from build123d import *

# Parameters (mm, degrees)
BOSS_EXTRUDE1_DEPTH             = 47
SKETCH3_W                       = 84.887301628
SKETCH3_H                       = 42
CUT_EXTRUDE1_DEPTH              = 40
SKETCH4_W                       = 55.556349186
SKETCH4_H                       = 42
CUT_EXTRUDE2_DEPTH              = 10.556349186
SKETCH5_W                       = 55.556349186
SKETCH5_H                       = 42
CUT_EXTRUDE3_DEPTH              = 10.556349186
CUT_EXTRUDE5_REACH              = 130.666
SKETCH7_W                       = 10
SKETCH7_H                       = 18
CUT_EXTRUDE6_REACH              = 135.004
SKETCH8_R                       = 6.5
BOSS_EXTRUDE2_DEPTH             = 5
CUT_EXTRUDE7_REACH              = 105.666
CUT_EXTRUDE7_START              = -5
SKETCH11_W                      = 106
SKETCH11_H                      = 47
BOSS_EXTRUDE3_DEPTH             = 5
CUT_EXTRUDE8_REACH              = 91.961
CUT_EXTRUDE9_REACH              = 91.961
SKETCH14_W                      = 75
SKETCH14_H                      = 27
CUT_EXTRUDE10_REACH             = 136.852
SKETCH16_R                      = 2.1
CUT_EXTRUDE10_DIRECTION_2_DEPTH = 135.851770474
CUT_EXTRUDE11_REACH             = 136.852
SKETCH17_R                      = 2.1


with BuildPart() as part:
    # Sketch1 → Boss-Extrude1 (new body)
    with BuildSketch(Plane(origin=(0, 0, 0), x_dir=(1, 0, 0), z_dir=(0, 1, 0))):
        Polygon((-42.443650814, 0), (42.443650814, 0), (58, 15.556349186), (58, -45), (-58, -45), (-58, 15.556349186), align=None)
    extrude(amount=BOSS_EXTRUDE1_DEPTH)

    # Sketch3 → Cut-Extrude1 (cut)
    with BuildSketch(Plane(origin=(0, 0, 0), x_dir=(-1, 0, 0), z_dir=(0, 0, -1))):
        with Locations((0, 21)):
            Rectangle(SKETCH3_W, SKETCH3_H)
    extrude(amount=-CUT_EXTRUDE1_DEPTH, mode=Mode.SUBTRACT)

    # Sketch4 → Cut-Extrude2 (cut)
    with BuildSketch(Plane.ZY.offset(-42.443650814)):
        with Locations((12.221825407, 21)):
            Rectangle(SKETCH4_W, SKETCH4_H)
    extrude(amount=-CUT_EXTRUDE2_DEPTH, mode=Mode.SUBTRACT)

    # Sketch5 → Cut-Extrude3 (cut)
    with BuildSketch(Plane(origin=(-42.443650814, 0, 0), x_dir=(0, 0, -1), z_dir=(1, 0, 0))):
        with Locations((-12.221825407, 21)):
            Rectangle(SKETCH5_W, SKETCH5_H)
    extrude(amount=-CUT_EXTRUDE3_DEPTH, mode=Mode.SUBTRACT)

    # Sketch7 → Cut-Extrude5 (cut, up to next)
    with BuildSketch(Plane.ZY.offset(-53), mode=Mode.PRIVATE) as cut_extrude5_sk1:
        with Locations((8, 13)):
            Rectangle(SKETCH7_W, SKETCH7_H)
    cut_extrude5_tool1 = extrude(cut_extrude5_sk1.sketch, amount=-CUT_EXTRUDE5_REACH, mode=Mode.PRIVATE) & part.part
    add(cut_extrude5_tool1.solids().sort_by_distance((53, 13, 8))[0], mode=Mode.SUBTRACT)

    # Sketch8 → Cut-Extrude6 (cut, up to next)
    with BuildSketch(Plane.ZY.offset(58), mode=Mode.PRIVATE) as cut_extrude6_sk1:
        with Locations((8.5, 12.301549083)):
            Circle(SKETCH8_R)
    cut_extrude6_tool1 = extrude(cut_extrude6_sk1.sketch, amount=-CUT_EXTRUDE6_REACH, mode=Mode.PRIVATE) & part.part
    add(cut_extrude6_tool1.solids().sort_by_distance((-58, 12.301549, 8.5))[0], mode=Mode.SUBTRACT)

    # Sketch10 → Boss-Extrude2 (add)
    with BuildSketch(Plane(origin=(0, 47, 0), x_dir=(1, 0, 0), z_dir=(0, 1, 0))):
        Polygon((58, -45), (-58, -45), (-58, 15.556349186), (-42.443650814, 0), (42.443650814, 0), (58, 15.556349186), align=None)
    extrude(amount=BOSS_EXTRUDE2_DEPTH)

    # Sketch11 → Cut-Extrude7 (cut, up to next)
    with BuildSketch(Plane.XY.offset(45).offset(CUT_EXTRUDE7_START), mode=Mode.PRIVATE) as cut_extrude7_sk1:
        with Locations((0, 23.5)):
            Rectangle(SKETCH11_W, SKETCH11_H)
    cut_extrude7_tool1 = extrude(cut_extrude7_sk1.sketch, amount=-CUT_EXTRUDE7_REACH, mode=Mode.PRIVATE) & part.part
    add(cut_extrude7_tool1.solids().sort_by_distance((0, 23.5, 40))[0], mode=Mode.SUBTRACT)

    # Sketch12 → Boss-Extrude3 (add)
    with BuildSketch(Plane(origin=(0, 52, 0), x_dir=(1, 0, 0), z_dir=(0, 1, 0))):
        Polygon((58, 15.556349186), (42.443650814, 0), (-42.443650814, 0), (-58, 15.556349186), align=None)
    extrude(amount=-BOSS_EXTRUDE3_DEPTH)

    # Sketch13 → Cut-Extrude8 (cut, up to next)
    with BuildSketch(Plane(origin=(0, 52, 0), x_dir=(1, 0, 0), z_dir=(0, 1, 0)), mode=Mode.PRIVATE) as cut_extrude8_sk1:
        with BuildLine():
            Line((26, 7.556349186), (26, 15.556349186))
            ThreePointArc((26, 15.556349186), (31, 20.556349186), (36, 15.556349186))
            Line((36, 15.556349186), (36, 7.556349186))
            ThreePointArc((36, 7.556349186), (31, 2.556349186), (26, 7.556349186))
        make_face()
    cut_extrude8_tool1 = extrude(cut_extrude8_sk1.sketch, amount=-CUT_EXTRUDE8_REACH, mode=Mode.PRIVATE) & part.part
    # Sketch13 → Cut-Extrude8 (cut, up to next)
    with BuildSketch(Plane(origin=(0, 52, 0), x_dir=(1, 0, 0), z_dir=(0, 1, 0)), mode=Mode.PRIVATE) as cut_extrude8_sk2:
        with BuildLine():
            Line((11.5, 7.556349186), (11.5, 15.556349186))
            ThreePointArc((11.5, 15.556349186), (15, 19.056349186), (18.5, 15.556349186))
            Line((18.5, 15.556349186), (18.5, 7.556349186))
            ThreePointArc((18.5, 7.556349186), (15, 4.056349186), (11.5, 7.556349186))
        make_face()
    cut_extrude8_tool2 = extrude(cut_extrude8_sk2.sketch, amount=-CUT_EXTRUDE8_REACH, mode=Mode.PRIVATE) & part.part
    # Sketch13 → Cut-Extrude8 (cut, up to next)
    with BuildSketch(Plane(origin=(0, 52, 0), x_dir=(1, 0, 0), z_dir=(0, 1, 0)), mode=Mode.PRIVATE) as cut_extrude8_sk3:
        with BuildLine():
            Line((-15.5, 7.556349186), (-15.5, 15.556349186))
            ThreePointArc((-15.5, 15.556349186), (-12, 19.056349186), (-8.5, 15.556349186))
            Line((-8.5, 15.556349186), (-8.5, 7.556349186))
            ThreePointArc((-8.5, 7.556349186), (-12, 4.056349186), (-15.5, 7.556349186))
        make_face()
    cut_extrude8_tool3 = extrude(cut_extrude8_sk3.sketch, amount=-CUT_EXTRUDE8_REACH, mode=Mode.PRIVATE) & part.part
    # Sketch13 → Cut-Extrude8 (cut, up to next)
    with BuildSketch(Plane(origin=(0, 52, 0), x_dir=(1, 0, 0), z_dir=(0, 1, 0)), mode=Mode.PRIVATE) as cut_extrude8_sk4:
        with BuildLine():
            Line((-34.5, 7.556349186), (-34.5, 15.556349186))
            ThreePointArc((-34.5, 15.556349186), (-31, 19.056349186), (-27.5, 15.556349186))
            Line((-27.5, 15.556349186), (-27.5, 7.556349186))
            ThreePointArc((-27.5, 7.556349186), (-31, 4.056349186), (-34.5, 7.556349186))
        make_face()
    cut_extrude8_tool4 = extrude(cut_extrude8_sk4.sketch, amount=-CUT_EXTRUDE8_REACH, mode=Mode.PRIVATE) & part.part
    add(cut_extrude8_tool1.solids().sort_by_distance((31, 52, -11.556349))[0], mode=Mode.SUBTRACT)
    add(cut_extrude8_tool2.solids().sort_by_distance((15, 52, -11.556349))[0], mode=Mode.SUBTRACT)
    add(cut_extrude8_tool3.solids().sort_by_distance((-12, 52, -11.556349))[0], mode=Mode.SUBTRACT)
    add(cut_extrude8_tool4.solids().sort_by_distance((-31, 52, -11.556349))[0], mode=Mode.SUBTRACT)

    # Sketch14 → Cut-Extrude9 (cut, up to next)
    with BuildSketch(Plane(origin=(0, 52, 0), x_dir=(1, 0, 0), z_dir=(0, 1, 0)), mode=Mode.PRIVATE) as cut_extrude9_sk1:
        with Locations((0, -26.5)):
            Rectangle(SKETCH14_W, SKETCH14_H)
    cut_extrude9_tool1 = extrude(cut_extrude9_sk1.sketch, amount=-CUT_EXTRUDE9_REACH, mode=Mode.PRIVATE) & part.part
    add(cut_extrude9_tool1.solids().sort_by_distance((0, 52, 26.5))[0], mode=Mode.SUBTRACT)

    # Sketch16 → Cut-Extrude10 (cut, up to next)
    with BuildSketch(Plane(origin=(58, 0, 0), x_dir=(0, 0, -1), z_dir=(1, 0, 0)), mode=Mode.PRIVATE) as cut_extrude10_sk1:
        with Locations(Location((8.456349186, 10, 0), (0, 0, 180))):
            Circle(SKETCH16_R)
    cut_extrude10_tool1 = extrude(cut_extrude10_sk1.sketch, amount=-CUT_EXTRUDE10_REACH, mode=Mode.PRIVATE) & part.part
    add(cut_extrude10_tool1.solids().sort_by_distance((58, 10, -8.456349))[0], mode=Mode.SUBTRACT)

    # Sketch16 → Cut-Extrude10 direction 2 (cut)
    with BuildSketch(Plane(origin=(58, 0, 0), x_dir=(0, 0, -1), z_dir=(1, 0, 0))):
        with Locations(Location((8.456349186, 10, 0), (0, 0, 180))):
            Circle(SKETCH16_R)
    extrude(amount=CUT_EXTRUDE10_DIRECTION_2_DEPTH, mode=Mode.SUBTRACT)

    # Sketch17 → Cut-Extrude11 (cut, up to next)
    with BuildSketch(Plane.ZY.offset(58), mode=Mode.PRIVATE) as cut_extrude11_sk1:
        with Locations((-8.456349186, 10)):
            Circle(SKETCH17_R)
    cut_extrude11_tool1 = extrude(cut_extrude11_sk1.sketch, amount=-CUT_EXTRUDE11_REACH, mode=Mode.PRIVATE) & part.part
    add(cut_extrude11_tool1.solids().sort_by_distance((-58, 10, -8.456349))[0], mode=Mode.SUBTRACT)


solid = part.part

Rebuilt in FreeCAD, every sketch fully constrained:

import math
import FreeCAD as App
import Part
import Sketcher
from FreeCAD import Vector

doc = App.newDocument("Part")
body = doc.addObject("PartDesign::Body", "Body")

# Sketch on XZ plane
sketch1 = body.newObject("Sketcher::SketchObject", "Sketch")
sketch1.AttachmentSupport = (doc.getObject("XZ_Plane"), [""])
sketch1.MapMode = "FlatFace"
sketch1.addGeometry([
    Part.LineSegment(Vector(42, 0, 0), Vector(-42, 0, 0)),  # 0
    Part.LineSegment(Vector(-42, 0, 0), Vector(-58, -16, 0)),  # 1
    Part.LineSegment(Vector(-58, -16, 0), Vector(-58, 45, 0)),  # 2
    Part.LineSegment(Vector(-58, 45, 0), Vector(58, 45, 0)),  # 3
    Part.LineSegment(Vector(58, 45, 0), Vector(58, -16, 0)),  # 4
    Part.LineSegment(Vector(58, -16, 0), Vector(42, 0, 0)),  # 5
], False)
sketch1.addConstraint([
    Sketcher.Constraint("Coincident", 0, 2, 1, 1),
    Sketcher.Constraint("Coincident", 1, 2, 2, 1),
    Sketcher.Constraint("Coincident", 2, 2, 3, 1),
    Sketcher.Constraint("Coincident", 3, 2, 4, 1),
    Sketcher.Constraint("Coincident", 4, 2, 5, 1),
    Sketcher.Constraint("Coincident", 5, 2, 0, 1),
    Sketcher.Constraint("Horizontal", 0),
    Sketcher.Constraint("Vertical", 2),
    Sketcher.Constraint("Horizontal", 3),
    Sketcher.Constraint("Vertical", 4),
    Sketcher.Constraint("Symmetric", 0, 2, 5, 2, -1, 1),
    Sketcher.Constraint("Symmetric", 1, 2, 4, 2, -2),
    Sketcher.Constraint("Perpendicular", 1, 5),
    Sketcher.Constraint("DistanceX", 3, 1, 3, 2, 116.0),
    Sketcher.Constraint("Distance", 1, 22.0),
    Sketcher.Constraint("DistanceY", -1, 1, 2, 2, 45.0),
])
pad1 = body.newObject("PartDesign::Pad", "Pad")
pad1.Profile = sketch1
pad1.Length = 47
pad1.Reversed = True

# Sketch on XY plane
sketch2 = body.newObject("Sketcher::SketchObject", "Sketch001")
sketch2.AttachmentSupport = (doc.getObject("XY_Plane"), [""])
sketch2.MapMode = "FlatFace"
sketch2.addGeometry([
    Part.LineSegment(Vector(42, 42, 0), Vector(42, 0, 0)),
    Part.LineSegment(Vector(42, 0, 0), Vector(-42, 0, 0)),
    Part.LineSegment(Vector(-42, 0, 0), Vector(-42, 42, 0)),
    Part.LineSegment(Vector(-42, 42, 0), Vector(42, 42, 0)),
], False)
sketch2.addConstraint([
    Sketcher.Constraint("Coincident", 0, 2, 1, 1),
    Sketcher.Constraint("Coincident", 1, 2, 2, 1),
    Sketcher.Constraint("Coincident", 2, 2, 3, 1),
    Sketcher.Constraint("Coincident", 3, 2, 0, 1),
    Sketcher.Constraint("Vertical", 0),
    Sketcher.Constraint("Horizontal", 1),
    Sketcher.Constraint("Vertical", 2),
    Sketcher.Constraint("Horizontal", 3),
    Sketcher.Constraint("Symmetric", 0, 2, 1, 2, -1, 1),
    Sketcher.Constraint("DistanceY", 0, 2, 0, 1, 42.0),
    Sketcher.Constraint("DistanceX", 1, 2, 1, 1, 84.887302),
])
pocket1 = body.newObject("PartDesign::Pocket", "Pocket")
pocket1.Profile = sketch2
pocket1.Length = 40
pocket1.Reversed = True

# Sketch on YZ plane
sketch3 = body.newObject("Sketcher::SketchObject", "Sketch002")
sketch3.AttachmentSupport = (doc.getObject("YZ_Plane"), [""])
sketch3.MapMode = "FlatFace"
sketch3.AttachmentOffset = App.Placement(Vector(0, 0, 42.443651), App.Rotation())
sketch3.addGeometry([
    Part.LineSegment(Vector(42, -16, 0), Vector(0, -16, 0)),
    Part.LineSegment(Vector(0, -16, 0), Vector(0, 40, 0)),
    Part.LineSegment(Vector(0, 40, 0), Vector(42, 40, 0)),
    Part.LineSegment(Vector(42, 40, 0), Vector(42, -16, 0)),
], False)
sketch3.addConstraint([
    Sketcher.Constraint("Coincident", 0, 2, 1, 1),
    Sketcher.Constraint("Coincident", 1, 2, 2, 1),
    Sketcher.Constraint("Coincident", 2, 2, 3, 1),
    Sketcher.Constraint("Coincident", 3, 2, 0, 1),
    Sketcher.Constraint("Horizontal", 0),
    Sketcher.Constraint("Vertical", 1),
    Sketcher.Constraint("Horizontal", 2),
    Sketcher.Constraint("Vertical", 3),
    Sketcher.Constraint("PointOnObject", 0, 2, -2),
    Sketcher.Constraint("DistanceX", 0, 2, 0, 1, 42.0),
    Sketcher.Constraint("DistanceY", -1, 1, 1, 2, 40.0),
    Sketcher.Constraint("DistanceY", 1, 1, 1, 2, 55.556349),
])
pocket2 = body.newObject("PartDesign::Pocket", "Pocket001")
pocket2.Profile = sketch3
pocket2.Length = 10.556349
pocket2.Reversed = True

# Sketch on YZ plane
sketch4 = body.newObject("Sketcher::SketchObject", "Sketch003")
sketch4.AttachmentSupport = (doc.getObject("YZ_Plane"), [""])
sketch4.MapMode = "FlatFace"
sketch4.AttachmentOffset = App.Placement(Vector(0, 0, -42.443651), App.Rotation())
sketch4.addGeometry([
    Part.LineSegment(Vector(42, 40, 0), Vector(0, 40, 0)),
    Part.LineSegment(Vector(0, 40, 0), Vector(0, -16, 0)),
    Part.LineSegment(Vector(0, -16, 0), Vector(42, -16, 0)),
    Part.LineSegment(Vector(42, -16, 0), Vector(42, 40, 0)),
], False)
sketch4.addConstraint([
    Sketcher.Constraint("Coincident", 0, 2, 1, 1),
    Sketcher.Constraint("Coincident", 1, 2, 2, 1),
    Sketcher.Constraint("Coincident", 2, 2, 3, 1),
    Sketcher.Constraint("Coincident", 3, 2, 0, 1),
    Sketcher.Constraint("Horizontal", 0),
    Sketcher.Constraint("Vertical", 1),
    Sketcher.Constraint("Horizontal", 2),
    Sketcher.Constraint("Vertical", 3),
    Sketcher.Constraint("PointOnObject", 0, 2, -2),
    Sketcher.Constraint("DistanceX", 0, 2, 0, 1, 42.0),
    Sketcher.Constraint("DistanceY", -1, 1, 0, 2, 40.0),
    Sketcher.Constraint("DistanceY", 1, 2, 1, 1, 55.556349),
])
pocket3 = body.newObject("PartDesign::Pocket", "Pocket002")
pocket3.Profile = sketch4
pocket3.Length = 10.556349

# Sketch on YZ plane
sketch5 = body.newObject("Sketcher::SketchObject", "Sketch004")
sketch5.AttachmentSupport = (doc.getObject("YZ_Plane"), [""])
sketch5.MapMode = "FlatFace"
sketch5.AttachmentOffset = App.Placement(Vector(0, 0, 53), App.Rotation())
sketch5.addGeometry([
    Part.LineSegment(Vector(22, 3, 0), Vector(4, 3, 0)),
    Part.LineSegment(Vector(4, 3, 0), Vector(4, 13, 0)),
    Part.LineSegment(Vector(4, 13, 0), Vector(22, 13, 0)),
    Part.LineSegment(Vector(22, 13, 0), Vector(22, 3, 0)),
], False)
sketch5.addConstraint([
    Sketcher.Constraint("Coincident", 0, 2, 1, 1),
    Sketcher.Constraint("Coincident", 1, 2, 2, 1),
    Sketcher.Constraint("Coincident", 2, 2, 3, 1),
    Sketcher.Constraint("Coincident", 3, 2, 0, 1),
    Sketcher.Constraint("Horizontal", 0),
    Sketcher.Constraint("Vertical", 1),
    Sketcher.Constraint("Horizontal", 2),
    Sketcher.Constraint("Vertical", 3),
    Sketcher.Constraint("DistanceX", 0, 2, 0, 1, 18.0),
    Sketcher.Constraint("DistanceY", 1, 1, 1, 2, 10.0),
    Sketcher.Constraint("DistanceX", -1, 1, 0, 2, 4.0),
    Sketcher.Constraint("DistanceY", -1, 1, 0, 2, 3.0),
])
pocket4 = body.newObject("PartDesign::Pocket", "Pocket003")
pocket4.Profile = sketch5
pocket4.Type = "UpToFirst"
pocket4.Reversed = True

# Sketch on YZ plane
sketch6 = body.newObject("Sketcher::SketchObject", "Sketch005")
sketch6.AttachmentSupport = (doc.getObject("YZ_Plane"), [""])
sketch6.MapMode = "FlatFace"
sketch6.AttachmentOffset = App.Placement(Vector(0, 0, -58), App.Rotation())
sketch6.addGeometry(Part.Circle(Vector(12, 8, 0), Vector(0, 0, 1), 6), False)
sketch6.addConstraint([
    Sketcher.Constraint("Diameter", 0, 13.0),
    Sketcher.Constraint("DistanceY", -1, 1, 0, 3, 8.5),
    Sketcher.Constraint("DistanceX", -1, 1, 0, 3, 12.301549),
])
pocket5 = body.newObject("PartDesign::Pocket", "Pocket004")
pocket5.Profile = sketch6
pocket5.Type = "UpToFirst"
pocket5.Reversed = True

# Sketch on XZ plane
sketch7 = body.newObject("Sketcher::SketchObject", "Sketch006")
sketch7.AttachmentSupport = (doc.getObject("XZ_Plane"), [""])
sketch7.MapMode = "FlatFace"
sketch7.AttachmentOffset = App.Placement(Vector(0, 0, -47), App.Rotation())
sketch7.addGeometry([
    Part.LineSegment(Vector(-58, 45, 0), Vector(58, 45, 0)),  # 0
    Part.LineSegment(Vector(58, 45, 0), Vector(58, -16, 0)),  # 1
    Part.LineSegment(Vector(58, -16, 0), Vector(42, 0, 0)),  # 2
    Part.LineSegment(Vector(42, 0, 0), Vector(-42, 0, 0)),  # 3
    Part.LineSegment(Vector(-42, 0, 0), Vector(-58, -16, 0)),  # 4
    Part.LineSegment(Vector(-58, -16, 0), Vector(-58, 45, 0)),  # 5
], False)
sketch7.addConstraint([
    Sketcher.Constraint("Coincident", 0, 2, 1, 1),
    Sketcher.Constraint("Coincident", 1, 2, 2, 1),
    Sketcher.Constraint("Coincident", 2, 2, 3, 1),
    Sketcher.Constraint("Coincident", 3, 2, 4, 1),
    Sketcher.Constraint("Coincident", 4, 2, 5, 1),
    Sketcher.Constraint("Coincident", 5, 2, 0, 1),
    Sketcher.Constraint("Horizontal", 0),
    Sketcher.Constraint("Vertical", 1),
    Sketcher.Constraint("Horizontal", 3),
    Sketcher.Constraint("Vertical", 5),
    Sketcher.Constraint("Symmetric", 2, 2, 3, 2, -1, 1),
    Sketcher.Constraint("Symmetric", 1, 2, 4, 2, -2),
    Sketcher.Constraint("Perpendicular", 2, 4),
    Sketcher.Constraint("DistanceX", 0, 1, 0, 2, 116.0),
    Sketcher.Constraint("Distance", 2, 22.0),
    Sketcher.Constraint("DistanceY", -1, 1, 0, 2, 45.0),
])
pad2 = body.newObject("PartDesign::Pad", "Pad001")
pad2.Profile = sketch7
pad2.Length = 5
pad2.Reversed = True

# Sketch on XY plane
sketch8 = body.newObject("Sketcher::SketchObject", "Sketch007")
sketch8.AttachmentSupport = (doc.getObject("XY_Plane"), [""])
sketch8.MapMode = "FlatFace"
sketch8.AttachmentOffset = App.Placement(Vector(0, 0, 40), App.Rotation())
sketch8.addGeometry([
    Part.LineSegment(Vector(-53, 47, 0), Vector(-53, 0, 0)),
    Part.LineSegment(Vector(-53, 0, 0), Vector(53, 0, 0)),
    Part.LineSegment(Vector(53, 0, 0), Vector(53, 47, 0)),
    Part.LineSegment(Vector(53, 47, 0), Vector(-53, 47, 0)),
], False)
sketch8.addConstraint([
    Sketcher.Constraint("Coincident", 0, 2, 1, 1),
    Sketcher.Constraint("Coincident", 1, 2, 2, 1),
    Sketcher.Constraint("Coincident", 2, 2, 3, 1),
    Sketcher.Constraint("Coincident", 3, 2, 0, 1),
    Sketcher.Constraint("Vertical", 0),
    Sketcher.Constraint("Horizontal", 1),
    Sketcher.Constraint("Vertical", 2),
    Sketcher.Constraint("Horizontal", 3),
    Sketcher.Constraint("Symmetric", 0, 2, 1, 2, -1, 1),
    Sketcher.Constraint("DistanceX", 1, 1, 1, 2, 106.0),
    Sketcher.Constraint("DistanceY", 0, 2, 0, 1, 47.0),
])
pocket6 = body.newObject("PartDesign::Pocket", "Pocket005")
pocket6.Profile = sketch8
pocket6.Length = 50.556349

# Sketch on XZ plane
sketch9 = body.newObject("Sketcher::SketchObject", "Sketch008")
sketch9.AttachmentSupport = (doc.getObject("XZ_Plane"), [""])
sketch9.MapMode = "FlatFace"
sketch9.AttachmentOffset = App.Placement(Vector(0, 0, -52), App.Rotation())
sketch9.addGeometry([
    Part.LineSegment(Vector(42, 0, 0), Vector(58, -16, 0)),
    Part.LineSegment(Vector(58, -16, 0), Vector(-58, -16, 0)),
    Part.LineSegment(Vector(-58, -16, 0), Vector(-42, 0, 0)),
    Part.LineSegment(Vector(-42, 0, 0), Vector(42, 0, 0)),
], False)
sketch9.addConstraint([
    Sketcher.Constraint("Coincident", 0, 2, 1, 1),
    Sketcher.Constraint("Coincident", 1, 2, 2, 1),
    Sketcher.Constraint("Coincident", 2, 2, 3, 1),
    Sketcher.Constraint("Coincident", 3, 2, 0, 1),
    Sketcher.Constraint("Horizontal", 1),
    Sketcher.Constraint("Horizontal", 3),
    Sketcher.Constraint("Symmetric", 2, 2, 3, 2, -1, 1),
    Sketcher.Constraint("Perpendicular", 0, 2),
    Sketcher.Constraint("Equal", 0, 2),
    Sketcher.Constraint("DistanceX", 1, 2, 1, 1, 116.0),
    Sketcher.Constraint("Distance", 0, 22.0),
])
pad3 = body.newObject("PartDesign::Pad", "Pad002")
pad3.Profile = sketch9
pad3.Length = 5

# Sketch on XZ plane
sketch10 = body.newObject("Sketcher::SketchObject", "Sketch009")
sketch10.AttachmentSupport = (doc.getObject("XZ_Plane"), [""])
sketch10.MapMode = "FlatFace"
sketch10.AttachmentOffset = App.Placement(Vector(0, 0, -52), App.Rotation())
sketch10.addGeometry([
    Part.LineSegment(Vector(26, -16, 0), Vector(26, -8, 0)),
    Part.ArcOfCircle(Part.Circle(Vector(31, -8, 0), Vector(0, 0, 1), 5), math.radians(0), math.radians(180)),
    Part.LineSegment(Vector(36, -8, 0), Vector(36, -16, 0)),
    Part.ArcOfCircle(Part.Circle(Vector(31, -16, 0), Vector(0, 0, 1), 5), math.radians(180), math.radians(360)),
], False)
sketch10.addConstraint([
    Sketcher.Constraint("Tangent", 0, 2, 1, 2),
    Sketcher.Constraint("Tangent", 1, 1, 2, 1),
    Sketcher.Constraint("Tangent", 2, 2, 3, 2),
    Sketcher.Constraint("Tangent", 3, 1, 0, 1),
    Sketcher.Constraint("Vertical", 0),
    Sketcher.Constraint("Vertical", 2),
    Sketcher.Constraint("Radius", 1, 5.0),
    Sketcher.Constraint("DistanceY", 0, 1, 0, 2, 8.0),
    Sketcher.Constraint("DistanceX", -1, 1, 1, 3, 31.0),
    Sketcher.Constraint("DistanceY", 1, 3, -1, 1, 7.556349),
])
pocket7 = body.newObject("PartDesign::Pocket", "Pocket006")
pocket7.Profile = sketch10
pocket7.Type = "UpToFirst"
pocket7.Reversed = True

# Sketch on XZ plane
sketch11 = body.newObject("Sketcher::SketchObject", "Sketch010")
sketch11.AttachmentSupport = (doc.getObject("XZ_Plane"), [""])
sketch11.MapMode = "FlatFace"
sketch11.AttachmentOffset = App.Placement(Vector(0, 0, -52), App.Rotation())
sketch11.addGeometry([
    Part.LineSegment(Vector(11.5, -15.6, 0), Vector(11.5, -7.6, 0)),
    Part.ArcOfCircle(Part.Circle(Vector(15, -7.6, 0), Vector(0, 0, 1), 3.5), math.radians(0), math.radians(180)),
    Part.LineSegment(Vector(18.5, -7.6, 0), Vector(18.5, -15.6, 0)),
    Part.ArcOfCircle(Part.Circle(Vector(15, -15.6, 0), Vector(0, 0, 1), 3.5), math.radians(180), math.radians(360)),
], False)
sketch11.addConstraint([
    Sketcher.Constraint("Tangent", 0, 2, 1, 2),
    Sketcher.Constraint("Tangent", 1, 1, 2, 1),
    Sketcher.Constraint("Tangent", 2, 2, 3, 2),
    Sketcher.Constraint("Tangent", 3, 1, 0, 1),
    Sketcher.Constraint("Vertical", 0),
    Sketcher.Constraint("Vertical", 2),
    Sketcher.Constraint("Radius", 1, 3.5),
    Sketcher.Constraint("DistanceY", 0, 1, 0, 2, 8.0),
    Sketcher.Constraint("DistanceX", -1, 1, 1, 3, 15.0),
    Sketcher.Constraint("DistanceY", 1, 3, -1, 1, 7.556349),
])
pocket8 = body.newObject("PartDesign::Pocket", "Pocket007")
pocket8.Profile = sketch11
pocket8.Type = "UpToFirst"
pocket8.Reversed = True

# Sketch on XZ plane
sketch12 = body.newObject("Sketcher::SketchObject", "Sketch011")
sketch12.AttachmentSupport = (doc.getObject("XZ_Plane"), [""])
sketch12.MapMode = "FlatFace"
sketch12.AttachmentOffset = App.Placement(Vector(0, 0, -52), App.Rotation())
sketch12.addGeometry([
    Part.LineSegment(Vector(-15.5, -15.6, 0), Vector(-15.5, -7.6, 0)),
    Part.ArcOfCircle(Part.Circle(Vector(-12, -7.6, 0), Vector(0, 0, 1), 3.5), math.radians(0), math.radians(180)),
    Part.LineSegment(Vector(-8.5, -7.6, 0), Vector(-8.5, -15.6, 0)),
    Part.ArcOfCircle(Part.Circle(Vector(-12, -15.6, 0), Vector(0, 0, 1), 3.5), math.radians(180), math.radians(360)),
], False)
sketch12.addConstraint([
    Sketcher.Constraint("Tangent", 0, 2, 1, 2),
    Sketcher.Constraint("Tangent", 1, 1, 2, 1),
    Sketcher.Constraint("Tangent", 2, 2, 3, 2),
    Sketcher.Constraint("Tangent", 3, 1, 0, 1),
    Sketcher.Constraint("Vertical", 0),
    Sketcher.Constraint("Vertical", 2),
    Sketcher.Constraint("Radius", 1, 3.5),
    Sketcher.Constraint("DistanceY", 0, 1, 0, 2, 8.0),
    Sketcher.Constraint("DistanceX", 1, 3, -1, 1, 12.0),
    Sketcher.Constraint("DistanceY", 1, 3, -1, 1, 7.556349),
])
pocket9 = body.newObject("PartDesign::Pocket", "Pocket008")
pocket9.Profile = sketch12
pocket9.Type = "UpToFirst"
pocket9.Reversed = True

# Sketch on XZ plane
sketch13 = body.newObject("Sketcher::SketchObject", "Sketch012")
sketch13.AttachmentSupport = (doc.getObject("XZ_Plane"), [""])
sketch13.MapMode = "FlatFace"
sketch13.AttachmentOffset = App.Placement(Vector(0, 0, -52), App.Rotation())
sketch13.addGeometry([
    Part.LineSegment(Vector(-34.5, -15.6, 0), Vector(-34.5, -7.6, 0)),
    Part.ArcOfCircle(Part.Circle(Vector(-31, -7.6, 0), Vector(0, 0, 1), 3.5), math.radians(0), math.radians(180)),
    Part.LineSegment(Vector(-27.5, -7.6, 0), Vector(-27.5, -15.6, 0)),
    Part.ArcOfCircle(Part.Circle(Vector(-31, -15.6, 0), Vector(0, 0, 1), 3.5), math.radians(180), math.radians(360)),
], False)
sketch13.addConstraint([
    Sketcher.Constraint("Tangent", 0, 2, 1, 2),
    Sketcher.Constraint("Tangent", 1, 1, 2, 1),
    Sketcher.Constraint("Tangent", 2, 2, 3, 2),
    Sketcher.Constraint("Tangent", 3, 1, 0, 1),
    Sketcher.Constraint("Vertical", 0),
    Sketcher.Constraint("Vertical", 2),
    Sketcher.Constraint("Radius", 1, 3.5),
    Sketcher.Constraint("DistanceY", 0, 1, 0, 2, 8.0),
    Sketcher.Constraint("DistanceX", 1, 3, -1, 1, 31.0),
    Sketcher.Constraint("DistanceY", 1, 3, -1, 1, 7.556349),
])
pocket10 = body.newObject("PartDesign::Pocket", "Pocket009")
pocket10.Profile = sketch13
pocket10.Type = "UpToFirst"
pocket10.Reversed = True

# Sketch on XZ plane
sketch14 = body.newObject("Sketcher::SketchObject", "Sketch013")
sketch14.AttachmentSupport = (doc.getObject("XZ_Plane"), [""])
sketch14.MapMode = "FlatFace"
sketch14.AttachmentOffset = App.Placement(Vector(0, 0, -52), App.Rotation())
sketch14.addGeometry([
    Part.LineSegment(Vector(-38, 13, 0), Vector(-38, 40, 0)),
    Part.LineSegment(Vector(-38, 40, 0), Vector(38, 40, 0)),
    Part.LineSegment(Vector(38, 40, 0), Vector(38, 13, 0)),
    Part.LineSegment(Vector(38, 13, 0), Vector(-38, 13, 0)),
], False)
sketch14.addConstraint([
    Sketcher.Constraint("Coincident", 0, 2, 1, 1),
    Sketcher.Constraint("Coincident", 1, 2, 2, 1),
    Sketcher.Constraint("Coincident", 2, 2, 3, 1),
    Sketcher.Constraint("Coincident", 3, 2, 0, 1),
    Sketcher.Constraint("Vertical", 0),
    Sketcher.Constraint("Horizontal", 1),
    Sketcher.Constraint("Vertical", 2),
    Sketcher.Constraint("Horizontal", 3),
    Sketcher.Constraint("DistanceX", 1, 1, 1, 2, 75.0),
    Sketcher.Constraint("DistanceY", 0, 1, 0, 2, 27.0),
    Sketcher.Constraint("DistanceY", -1, 1, 0, 2, 40.0),
    Sketcher.Constraint("DistanceX", 0, 2, -1, 1, 37.5),
])
pocket11 = body.newObject("PartDesign::Pocket", "Pocket010")
pocket11.Profile = sketch14
pocket11.Type = "UpToFirst"
pocket11.Reversed = True

# Sketch on YZ plane
sketch15 = body.newObject("Sketcher::SketchObject", "Sketch014")
sketch15.AttachmentSupport = (doc.getObject("YZ_Plane"), [""])
sketch15.MapMode = "FlatFace"
sketch15.AttachmentOffset = App.Placement(Vector(0, 0, 58), App.Rotation())
sketch15.addGeometry(Part.Circle(Vector(10, -8.5, 0), Vector(0, 0, 1), 2.1), False)
sketch15.addConstraint([
    Sketcher.Constraint("Diameter", 0, 4.2),
    Sketcher.Constraint("DistanceX", -1, 1, 0, 3, 10.0),
    Sketcher.Constraint("DistanceY", 0, 3, -1, 1, 8.456349),
])
pocket12 = body.newObject("PartDesign::Pocket", "Pocket011")
pocket12.Profile = sketch15
pocket12.Type = "UpToFirst"

# Sketch on YZ plane
sketch16 = body.newObject("Sketcher::SketchObject", "Sketch015")
sketch16.AttachmentSupport = (doc.getObject("YZ_Plane"), [""])
sketch16.MapMode = "FlatFace"
sketch16.AttachmentOffset = App.Placement(Vector(0, 0, 58), App.Rotation())
sketch16.addGeometry(Part.Circle(Vector(10, -8.5, 0), Vector(0, 0, 1), 2.1), False)
sketch16.addConstraint([
    Sketcher.Constraint("Diameter", 0, 4.2),
    Sketcher.Constraint("DistanceX", -1, 1, 0, 3, 10.0),
    Sketcher.Constraint("DistanceY", 0, 3, -1, 1, 8.456349),
])
pocket13 = body.newObject("PartDesign::Pocket", "Pocket012")
pocket13.Profile = sketch16
pocket13.Length = 135.85177
pocket13.Reversed = True

# Sketch on YZ plane
sketch17 = body.newObject("Sketcher::SketchObject", "Sketch016")
sketch17.AttachmentSupport = (doc.getObject("YZ_Plane"), [""])
sketch17.MapMode = "FlatFace"
sketch17.AttachmentOffset = App.Placement(Vector(0, 0, -58), App.Rotation())
sketch17.addGeometry(Part.Circle(Vector(10, -8.5, 0), Vector(0, 0, 1), 2.1), False)
sketch17.addConstraint([
    Sketcher.Constraint("Diameter", 0, 4.2),
    Sketcher.Constraint("DistanceX", -1, 1, 0, 3, 10.0),
    Sketcher.Constraint("DistanceY", 0, 3, -1, 1, 8.456349),
])
pocket14 = body.newObject("PartDesign::Pocket", "Pocket013")
pocket14.Profile = sketch17
pocket14.Type = "UpToFirst"
pocket14.Reversed = True

doc.recompute()
